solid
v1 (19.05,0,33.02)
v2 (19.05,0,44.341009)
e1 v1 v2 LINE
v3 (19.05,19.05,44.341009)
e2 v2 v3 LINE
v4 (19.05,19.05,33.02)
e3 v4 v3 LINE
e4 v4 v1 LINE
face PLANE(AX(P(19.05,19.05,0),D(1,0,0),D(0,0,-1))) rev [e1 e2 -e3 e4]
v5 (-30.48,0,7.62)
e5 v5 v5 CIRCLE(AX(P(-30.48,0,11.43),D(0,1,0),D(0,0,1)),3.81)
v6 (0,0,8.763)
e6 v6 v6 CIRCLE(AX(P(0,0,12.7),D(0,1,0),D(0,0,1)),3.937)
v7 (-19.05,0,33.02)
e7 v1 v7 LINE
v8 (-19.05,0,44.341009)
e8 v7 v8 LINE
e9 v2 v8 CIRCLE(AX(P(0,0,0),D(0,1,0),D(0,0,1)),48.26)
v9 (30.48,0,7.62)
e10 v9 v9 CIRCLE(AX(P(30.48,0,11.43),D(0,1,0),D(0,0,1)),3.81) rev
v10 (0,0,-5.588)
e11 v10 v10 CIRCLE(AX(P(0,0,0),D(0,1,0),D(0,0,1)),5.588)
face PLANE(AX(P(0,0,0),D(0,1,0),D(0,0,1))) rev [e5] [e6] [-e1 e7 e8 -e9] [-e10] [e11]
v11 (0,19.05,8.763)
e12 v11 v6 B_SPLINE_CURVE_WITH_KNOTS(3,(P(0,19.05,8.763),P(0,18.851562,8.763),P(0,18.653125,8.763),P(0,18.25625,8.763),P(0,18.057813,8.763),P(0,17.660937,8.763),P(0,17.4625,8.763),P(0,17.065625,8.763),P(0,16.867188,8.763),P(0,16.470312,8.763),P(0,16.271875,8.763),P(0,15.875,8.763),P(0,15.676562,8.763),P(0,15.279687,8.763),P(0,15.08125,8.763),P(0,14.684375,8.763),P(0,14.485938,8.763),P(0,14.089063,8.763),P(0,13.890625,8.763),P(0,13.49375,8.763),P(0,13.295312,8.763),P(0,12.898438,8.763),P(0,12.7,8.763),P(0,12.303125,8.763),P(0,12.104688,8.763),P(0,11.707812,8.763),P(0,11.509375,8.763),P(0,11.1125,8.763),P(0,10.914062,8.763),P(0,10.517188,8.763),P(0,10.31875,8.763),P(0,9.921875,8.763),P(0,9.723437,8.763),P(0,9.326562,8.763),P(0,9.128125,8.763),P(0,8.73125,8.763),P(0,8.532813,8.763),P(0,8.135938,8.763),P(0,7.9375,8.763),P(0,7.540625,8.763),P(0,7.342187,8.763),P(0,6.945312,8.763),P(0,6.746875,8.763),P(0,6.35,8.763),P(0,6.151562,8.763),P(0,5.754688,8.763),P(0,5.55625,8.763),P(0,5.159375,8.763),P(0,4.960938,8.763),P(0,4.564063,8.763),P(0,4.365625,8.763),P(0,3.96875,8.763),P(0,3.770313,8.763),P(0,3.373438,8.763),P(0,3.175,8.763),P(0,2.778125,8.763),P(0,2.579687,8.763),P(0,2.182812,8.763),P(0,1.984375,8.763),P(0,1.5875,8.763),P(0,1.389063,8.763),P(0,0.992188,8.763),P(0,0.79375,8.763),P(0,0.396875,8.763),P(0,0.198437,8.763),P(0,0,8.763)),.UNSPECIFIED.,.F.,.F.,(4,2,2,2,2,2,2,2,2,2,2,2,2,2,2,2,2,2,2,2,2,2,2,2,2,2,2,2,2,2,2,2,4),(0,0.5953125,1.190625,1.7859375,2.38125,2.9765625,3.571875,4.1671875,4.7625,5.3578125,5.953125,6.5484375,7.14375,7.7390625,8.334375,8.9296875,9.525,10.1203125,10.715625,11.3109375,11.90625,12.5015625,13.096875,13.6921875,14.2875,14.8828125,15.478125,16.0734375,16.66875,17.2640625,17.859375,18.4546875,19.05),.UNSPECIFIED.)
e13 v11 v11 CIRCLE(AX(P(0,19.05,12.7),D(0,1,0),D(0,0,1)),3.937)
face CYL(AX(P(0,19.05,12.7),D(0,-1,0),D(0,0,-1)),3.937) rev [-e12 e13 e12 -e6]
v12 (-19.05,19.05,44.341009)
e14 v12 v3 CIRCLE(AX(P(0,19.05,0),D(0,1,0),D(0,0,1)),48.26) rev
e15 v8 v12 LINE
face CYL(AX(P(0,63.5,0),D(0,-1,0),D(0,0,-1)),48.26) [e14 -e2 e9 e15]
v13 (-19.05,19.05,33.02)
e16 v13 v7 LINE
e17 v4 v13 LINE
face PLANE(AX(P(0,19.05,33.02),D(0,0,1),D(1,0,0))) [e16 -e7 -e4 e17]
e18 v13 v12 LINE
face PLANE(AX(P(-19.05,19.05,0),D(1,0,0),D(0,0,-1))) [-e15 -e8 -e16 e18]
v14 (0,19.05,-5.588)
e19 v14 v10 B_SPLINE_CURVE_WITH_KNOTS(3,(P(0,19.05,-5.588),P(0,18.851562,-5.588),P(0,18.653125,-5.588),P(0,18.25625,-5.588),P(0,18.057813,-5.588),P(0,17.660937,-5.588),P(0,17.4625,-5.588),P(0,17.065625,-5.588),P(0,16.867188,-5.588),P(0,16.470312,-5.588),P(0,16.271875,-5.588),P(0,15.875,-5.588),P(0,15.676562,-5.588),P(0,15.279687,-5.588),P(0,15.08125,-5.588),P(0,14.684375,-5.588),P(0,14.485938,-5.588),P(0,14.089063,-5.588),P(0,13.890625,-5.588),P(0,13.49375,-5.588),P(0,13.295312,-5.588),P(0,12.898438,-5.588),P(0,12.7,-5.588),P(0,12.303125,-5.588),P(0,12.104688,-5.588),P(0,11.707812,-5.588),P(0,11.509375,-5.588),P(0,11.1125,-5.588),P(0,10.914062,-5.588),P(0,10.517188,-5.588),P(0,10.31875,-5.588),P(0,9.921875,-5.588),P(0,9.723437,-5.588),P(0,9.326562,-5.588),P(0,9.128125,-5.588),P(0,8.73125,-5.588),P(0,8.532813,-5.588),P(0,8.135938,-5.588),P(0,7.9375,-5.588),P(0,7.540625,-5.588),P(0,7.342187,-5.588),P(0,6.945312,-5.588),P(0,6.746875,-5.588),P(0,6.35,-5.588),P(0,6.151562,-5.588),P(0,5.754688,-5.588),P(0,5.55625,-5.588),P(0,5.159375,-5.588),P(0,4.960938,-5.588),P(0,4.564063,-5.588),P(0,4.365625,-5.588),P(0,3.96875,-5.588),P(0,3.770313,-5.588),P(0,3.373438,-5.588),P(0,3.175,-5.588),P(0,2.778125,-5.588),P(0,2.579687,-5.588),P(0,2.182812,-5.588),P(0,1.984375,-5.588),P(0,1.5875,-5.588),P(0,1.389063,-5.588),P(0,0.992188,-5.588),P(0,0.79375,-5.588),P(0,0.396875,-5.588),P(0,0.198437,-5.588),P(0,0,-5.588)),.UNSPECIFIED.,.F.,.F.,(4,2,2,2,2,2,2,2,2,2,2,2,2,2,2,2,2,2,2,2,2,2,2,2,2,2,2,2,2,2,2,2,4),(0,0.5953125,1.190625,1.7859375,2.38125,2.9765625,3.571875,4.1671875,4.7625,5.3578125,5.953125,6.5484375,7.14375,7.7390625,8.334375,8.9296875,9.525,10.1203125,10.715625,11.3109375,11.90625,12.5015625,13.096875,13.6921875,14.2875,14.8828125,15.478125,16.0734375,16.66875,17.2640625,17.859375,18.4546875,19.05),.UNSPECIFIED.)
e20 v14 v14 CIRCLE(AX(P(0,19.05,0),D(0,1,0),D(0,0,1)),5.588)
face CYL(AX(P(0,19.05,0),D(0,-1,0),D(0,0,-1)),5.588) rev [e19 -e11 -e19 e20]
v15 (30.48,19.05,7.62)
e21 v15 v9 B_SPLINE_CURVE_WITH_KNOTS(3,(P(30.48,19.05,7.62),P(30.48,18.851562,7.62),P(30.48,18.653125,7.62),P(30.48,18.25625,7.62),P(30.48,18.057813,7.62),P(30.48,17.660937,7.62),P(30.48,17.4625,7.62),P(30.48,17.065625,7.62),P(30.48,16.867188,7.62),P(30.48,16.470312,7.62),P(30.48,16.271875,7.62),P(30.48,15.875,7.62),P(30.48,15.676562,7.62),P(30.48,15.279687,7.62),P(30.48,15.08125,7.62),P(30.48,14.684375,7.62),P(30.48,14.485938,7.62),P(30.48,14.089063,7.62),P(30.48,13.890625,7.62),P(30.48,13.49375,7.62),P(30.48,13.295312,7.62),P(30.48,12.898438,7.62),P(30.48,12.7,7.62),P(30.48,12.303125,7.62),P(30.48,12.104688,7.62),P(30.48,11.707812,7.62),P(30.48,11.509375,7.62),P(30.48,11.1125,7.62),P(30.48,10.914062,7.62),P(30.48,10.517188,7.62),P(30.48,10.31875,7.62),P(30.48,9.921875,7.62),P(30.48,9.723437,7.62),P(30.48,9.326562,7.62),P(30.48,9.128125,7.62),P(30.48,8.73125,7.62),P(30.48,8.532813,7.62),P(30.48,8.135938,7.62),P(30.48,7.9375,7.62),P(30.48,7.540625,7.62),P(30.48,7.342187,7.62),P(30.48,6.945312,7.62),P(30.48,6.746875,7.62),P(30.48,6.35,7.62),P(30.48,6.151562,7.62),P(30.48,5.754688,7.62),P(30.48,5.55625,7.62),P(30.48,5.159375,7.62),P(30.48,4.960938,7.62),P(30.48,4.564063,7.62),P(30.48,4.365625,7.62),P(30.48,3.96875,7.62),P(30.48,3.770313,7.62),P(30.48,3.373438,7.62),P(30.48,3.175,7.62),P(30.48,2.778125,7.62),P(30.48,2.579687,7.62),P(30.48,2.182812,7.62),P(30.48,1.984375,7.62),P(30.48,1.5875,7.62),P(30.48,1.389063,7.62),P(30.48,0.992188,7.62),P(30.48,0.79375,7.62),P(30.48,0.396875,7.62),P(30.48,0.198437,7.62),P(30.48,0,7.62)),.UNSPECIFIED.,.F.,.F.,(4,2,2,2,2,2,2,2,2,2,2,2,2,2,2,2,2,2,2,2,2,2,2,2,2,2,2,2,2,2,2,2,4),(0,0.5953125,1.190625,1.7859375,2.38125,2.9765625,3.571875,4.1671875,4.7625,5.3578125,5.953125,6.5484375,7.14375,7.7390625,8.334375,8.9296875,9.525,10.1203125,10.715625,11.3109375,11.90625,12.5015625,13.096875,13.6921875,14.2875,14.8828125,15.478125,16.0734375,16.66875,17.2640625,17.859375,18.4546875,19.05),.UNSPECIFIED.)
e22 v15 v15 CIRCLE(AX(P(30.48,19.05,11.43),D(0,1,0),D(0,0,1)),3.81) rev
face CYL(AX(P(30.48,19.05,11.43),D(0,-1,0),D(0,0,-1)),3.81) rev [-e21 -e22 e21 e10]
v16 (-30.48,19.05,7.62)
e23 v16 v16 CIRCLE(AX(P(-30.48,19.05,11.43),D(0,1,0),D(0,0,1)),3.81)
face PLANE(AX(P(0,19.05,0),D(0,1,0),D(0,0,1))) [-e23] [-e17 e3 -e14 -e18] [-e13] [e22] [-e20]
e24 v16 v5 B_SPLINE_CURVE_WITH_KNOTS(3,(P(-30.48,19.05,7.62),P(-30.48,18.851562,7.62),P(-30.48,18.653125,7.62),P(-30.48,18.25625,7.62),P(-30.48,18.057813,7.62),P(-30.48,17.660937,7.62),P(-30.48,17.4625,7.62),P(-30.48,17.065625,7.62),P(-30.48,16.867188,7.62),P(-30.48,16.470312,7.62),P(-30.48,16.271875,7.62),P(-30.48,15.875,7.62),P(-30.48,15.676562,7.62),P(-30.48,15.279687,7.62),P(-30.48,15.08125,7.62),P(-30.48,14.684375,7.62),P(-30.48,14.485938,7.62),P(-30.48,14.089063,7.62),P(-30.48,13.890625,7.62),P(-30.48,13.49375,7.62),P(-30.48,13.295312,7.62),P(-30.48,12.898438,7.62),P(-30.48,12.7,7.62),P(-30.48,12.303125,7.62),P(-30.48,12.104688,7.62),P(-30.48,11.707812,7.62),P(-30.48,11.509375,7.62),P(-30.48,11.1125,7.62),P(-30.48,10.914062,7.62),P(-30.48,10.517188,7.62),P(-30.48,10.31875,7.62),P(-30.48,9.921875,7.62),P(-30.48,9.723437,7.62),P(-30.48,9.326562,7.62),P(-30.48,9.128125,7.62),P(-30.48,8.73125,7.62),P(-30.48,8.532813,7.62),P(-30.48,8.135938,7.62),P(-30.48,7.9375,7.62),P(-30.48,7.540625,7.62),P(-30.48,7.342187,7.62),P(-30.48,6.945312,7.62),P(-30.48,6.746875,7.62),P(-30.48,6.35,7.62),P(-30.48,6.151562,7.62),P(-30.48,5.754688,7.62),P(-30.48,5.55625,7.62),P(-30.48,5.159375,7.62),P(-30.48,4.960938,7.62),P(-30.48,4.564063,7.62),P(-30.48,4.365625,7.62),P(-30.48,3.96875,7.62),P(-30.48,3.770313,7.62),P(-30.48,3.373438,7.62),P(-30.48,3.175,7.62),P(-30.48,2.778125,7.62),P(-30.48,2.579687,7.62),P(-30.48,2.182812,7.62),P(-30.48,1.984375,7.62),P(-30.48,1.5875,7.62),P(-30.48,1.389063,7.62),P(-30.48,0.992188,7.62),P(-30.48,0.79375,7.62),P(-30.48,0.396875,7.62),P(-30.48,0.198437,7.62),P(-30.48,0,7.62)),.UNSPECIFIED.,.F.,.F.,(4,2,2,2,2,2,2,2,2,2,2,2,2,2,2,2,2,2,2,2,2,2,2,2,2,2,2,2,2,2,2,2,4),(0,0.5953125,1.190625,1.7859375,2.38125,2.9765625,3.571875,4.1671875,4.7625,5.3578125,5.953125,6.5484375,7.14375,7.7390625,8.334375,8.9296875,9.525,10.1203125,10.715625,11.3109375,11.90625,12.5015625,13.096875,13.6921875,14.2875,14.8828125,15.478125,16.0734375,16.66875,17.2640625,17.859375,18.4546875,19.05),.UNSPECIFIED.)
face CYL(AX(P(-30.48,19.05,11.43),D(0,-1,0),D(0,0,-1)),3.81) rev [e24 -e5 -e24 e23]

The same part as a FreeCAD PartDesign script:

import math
import FreeCAD as App
import Part
import Sketcher

V = App.Vector
Q = App.Units.Quantity

doc = App.newDocument("Part")
body = doc.addObject("PartDesign::Body", "Body")

# Sketch on XZ plane
sketch1 = doc.addObject("Sketcher::SketchObject", "Sketch")
body.addObject(sketch1)
sketch1.AttachmentSupport = (doc.XZ_Plane, [""])
sketch1.MapMode = "FlatFace"
sketch1.addGeometry(Part.LineSegment(V(-19.1, 33, 0), V(19.1, 33, 0)), False)
sketch1.addGeometry(Part.LineSegment(V(19.1, 33, 0), V(19.1, 45.7, 0)), False)
sketch1.addGeometry(Part.ArcOfCircle(Part.Circle(V(0, 0, 0), V(0, 0, 1), 49.5), math.radians(0), math.radians(67)), False)
sketch1.addGeometry(Part.ArcOfCircle(Part.Circle(V(0, 0, 0), V(0, 0, 1), 49.5), math.radians(113), math.radians(360)), False)
sketch1.addGeometry(Part.LineSegment(V(-19.1, 45.7, 0), V(-19.1, 33, 0)), False)
sketch1.addGeometry(Part.Circle(V(-30.5, 11.4, 0), V(0, 0, 1), 3.8), False)
sketch1.addGeometry(Part.Circle(V(0, 12.7, 0), V(0, 0, 1), 3.9), False)
sketch1.addGeometry(Part.Circle(V(30.5, 11.4, 0), V(0, 0, 1), 3.8), False)
sketch1.addGeometry(Part.Circle(V(0, 0, 0), V(0, 0, 1), 5.6), False)
sketch1.addConstraint(Sketcher.Constraint("Coincident", 0, 2, 1, 1))
sketch1.addConstraint(Sketcher.Constraint("Coincident", 1, 2, 2, 2))
sketch1.addConstraint(Sketcher.Constraint("Tangent", 2, 1, 3, 2))
sketch1.addConstraint(Sketcher.Constraint("Coincident", 3, 1, 4, 1))
sketch1.addConstraint(Sketcher.Constraint("Coincident", 4, 2, 0, 1))
sketch1.addConstraint(Sketcher.Constraint("Horizontal", 0))
sketch1.addConstraint(Sketcher.Constraint("Vertical", 1))
sketch1.addConstraint(Sketcher.Constraint("Vertical", 4))
sketch1.addConstraint(Sketcher.Constraint("Coincident", 2, 3, -1, 1))
sketch1.addConstraint(Sketcher.Constraint("Coincident", 8, 3, -1, 1))
sketch1.addConstraint(Sketcher.Constraint("Equal", 2, 3))
sketch1.addConstraint(Sketcher.Constraint("Equal", 5, 7))
sketch1.addConstraint(Sketcher.Constraint("Symmetric", 5, 3, 7, 3, -2))
sketch1.addConstraint(Sketcher.Constraint("PointOnObject", 6, 3, -2))
sketch1.addConstraint(Sketcher.Constraint("PointOnObject", 2, 1, -1))
sketch1.addConstraint(Sketcher.Constraint("Horizontal", 1, 2, 3, 1))
sketch1.addConstraint(Sketcher.Constraint("Diameter", 5, Q("0.3 in")))
sketch1.addConstraint(Sketcher.Constraint("Diameter", 6, Q("0.31 in")))
sketch1.addConstraint(Sketcher.Constraint("Diameter", 8, Q("0.44 in")))
sketch1.addConstraint(Sketcher.Constraint("Radius", 2, Q("1.95 in")))
sketch1.addConstraint(Sketcher.Constraint("DistanceX", 0, 1, 0, 2, Q("1.5 in")))
sketch1.addConstraint(Sketcher.Constraint("DistanceY", 1, 1, 1, 2, Q("0.5 in")))
sketch1.addConstraint(Sketcher.Constraint("DistanceX", 5, 3, -1, 1, Q("1.2 in")))
sketch1.addConstraint(Sketcher.Constraint("DistanceY", -1, 1, 6, 3, Q("0.5 in")))
sketch1.addConstraint(Sketcher.Constraint("DistanceY", -1, 1, 5, 3, Q("0.45 in")))
pad1 = doc.addObject("PartDesign::Pad", "Pad")
body.addObject(pad1)
pad1.Profile = sketch1
pad1.Length = Q("0.75 in")
pad1.Reversed = True

# Sketch on XZ plane
sketch2 = doc.addObject("Sketcher::SketchObject", "Sketch001")
body.addObject(sketch2)
sketch2.AttachmentSupport = (doc.XZ_Plane, [""])
sketch2.MapMode = "FlatFace"
sketch2.addGeometry(Part.LineSegment(V(-88, -62, 0), V(-88, 62, 0)), False)
sketch2.addGeometry(Part.LineSegment(V(-88, 62, 0), V(88, 62, 0)), False)
sketch2.addGeometry(Part.LineSegment(V(88, 62, 0), V(88, -62, 0)), False)
sketch2.addGeometry(Part.LineSegment(V(88, -62, 0), V(-88, -62, 0)), False)
sketch2.addGeometry(Part.Circle(V(0, 0, 0), V(0, 0, 1), 48), False)
sketch2.addConstraint(Sketcher.Constraint("Coincident", 0, 2, 1, 1))
sketch2.addConstraint(Sketcher.Constraint("Coincident", 1, 2, 2, 1))
sketch2.addConstraint(Sketcher.Constraint("Coincident", 2, 2, 3, 1))
sketch2.addConstraint(Sketcher.Constraint("Coincident", 3, 2, 0, 1))
sketch2.addConstraint(Sketcher.Constraint("Vertical", 0))
sketch2.addConstraint(Sketcher.Constraint("Horizontal", 1))
sketch2.addConstraint(Sketcher.Constraint("Vertical", 2))
sketch2.addConstraint(Sketcher.Constraint("Horizontal", 3))
sketch2.addConstraint(Sketcher.Constraint("Coincident", 4, 3, -1, 1))
sketch2.addConstraint(Sketcher.Constraint("Symmetric", 0, 2, 2, 2, -1, 1))
sketch2.addConstraint(Sketcher.Constraint("Diameter", 4, Q("3.8 in")))
sketch2.addConstraint(Sketcher.Constraint("DistanceX", 0, 2, -1, 1, 87.754498))
sketch2.addConstraint(Sketcher.Constraint("DistanceY", 0, 1, 0, 2, 124.727536))
pocket1 = doc.addObject("PartDesign::Pocket", "Pocket")
body.addObject(pocket1)
pocket1.Profile = sketch2
pocket1.Length = Q("2.5 in")

doc.recompute()
